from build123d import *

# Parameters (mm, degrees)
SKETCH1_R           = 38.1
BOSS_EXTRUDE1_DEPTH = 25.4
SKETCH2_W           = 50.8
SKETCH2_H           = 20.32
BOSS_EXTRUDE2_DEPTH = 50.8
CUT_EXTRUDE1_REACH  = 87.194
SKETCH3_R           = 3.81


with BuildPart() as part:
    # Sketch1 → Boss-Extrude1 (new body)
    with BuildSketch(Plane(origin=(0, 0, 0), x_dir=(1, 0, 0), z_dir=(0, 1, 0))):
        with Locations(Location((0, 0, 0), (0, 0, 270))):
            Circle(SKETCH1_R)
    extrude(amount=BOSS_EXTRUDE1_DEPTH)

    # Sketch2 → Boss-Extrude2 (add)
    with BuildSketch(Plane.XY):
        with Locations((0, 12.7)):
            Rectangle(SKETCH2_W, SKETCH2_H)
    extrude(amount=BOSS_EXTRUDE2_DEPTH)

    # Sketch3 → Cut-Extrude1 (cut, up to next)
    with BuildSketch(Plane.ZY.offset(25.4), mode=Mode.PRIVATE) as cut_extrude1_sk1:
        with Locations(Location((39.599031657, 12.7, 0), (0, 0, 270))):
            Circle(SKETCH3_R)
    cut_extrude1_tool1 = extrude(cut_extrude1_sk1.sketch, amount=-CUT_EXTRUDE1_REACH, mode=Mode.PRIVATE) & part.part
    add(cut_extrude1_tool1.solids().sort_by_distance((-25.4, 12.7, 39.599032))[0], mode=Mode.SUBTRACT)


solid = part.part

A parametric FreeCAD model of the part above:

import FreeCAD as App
import Part
import Sketcher
Q = App.Units.Quantity


def add_polygon(sketch, points):
    """Adds a closed chain of lines whose ends are joined by coincident constraints."""
    first, n = sketch.GeometryCount, len(points)
    for a, b in zip(points, points[1:] + points[:1]):
        sketch.addGeometry(Part.LineSegment(App.Vector(*a, 0), App.Vector(*b, 0)), False)
    for i in range(n):
        sketch.addConstraint(Sketcher.Constraint("Coincident", first + i, 2, first + (i + 1) % n, 1))

doc = App.newDocument("Part")
body = doc.addObject("PartDesign::Body", "Body")

# Sketch on XZ plane
sketch1 = doc.addObject("Sketcher::SketchObject", "Sketch")
body.addObject(sketch1)
sketch1.AttachmentSupport = (doc.XZ_Plane, [""])
sketch1.MapMode = "FlatFace"
sketch1.addGeometry(Part.Circle(App.Vector(0, 0, 0), App.Vector(0, 0, 1), 38), False)
sketch1.addConstraint([
    Sketcher.Constraint("Coincident", 0, 3, -1, 1),
    Sketcher.Constraint("Diameter", 0, Q("3 in")),
])
pad1 = doc.addObject("PartDesign::Pad", "Pad")
body.addObject(pad1)
pad1.Profile = sketch1
pad1.Length = Q("1 in")
pad1.Reversed = True

# Sketch on XY plane
sketch2 = doc.addObject("Sketcher::SketchObject", "Sketch001")
body.addObject(sketch2)
sketch2.AttachmentSupport = (doc.XY_Plane, [""])
sketch2.MapMode = "FlatFace"
add_polygon(sketch2, [(-25, 23), (-25, 3), (25, 3), (25, 23)])  # lines 0-3
sketch2.addConstraint([
    Sketcher.Constraint("Vertical", 0),
    Sketcher.Constraint("Horizontal", 1),
    Sketcher.Constraint("Vertical", 2),
    Sketcher.Constraint("Horizontal", 3),
    Sketcher.Constraint("DistanceX", 1, 1, 1, 2, Q("2 in")),
    Sketcher.Constraint("DistanceY", 0, 2, 0, 1, Q("0.8 in")),
    Sketcher.Constraint("DistanceX", 0, 2, -1, 1, Q("1 in")),
    Sketcher.Constraint("DistanceY", -1, 1, 0, 2, Q("0.1 in")),
])
pad2 = doc.addObject("PartDesign::Pad", "Pad001")
body.addObject(pad2)
pad2.Profile = sketch2
pad2.Length = Q("2 in")

# Sketch on YZ plane
sketch3 = doc.addObject("Sketcher::SketchObject", "Sketch002")
body.addObject(sketch3)
sketch3.AttachmentSupport = (doc.YZ_Plane, [""])
sketch3.MapMode = "FlatFace"
sketch3.AttachmentOffset = App.Placement(App.Vector(0, 0, -1 * 25.4), App.Rotation())
sketch3.addGeometry(Part.Circle(App.Vector(12.7, 39.6, 0), App.Vector(0, 0, 1), 3.8), False)
sketch3.addConstraint([
    Sketcher.Constraint("Diameter", 0, Q("0.3 in")),
    Sketcher.Constraint("DistanceX", -1, 1, 0, 3, Q("0.5 in")),
    Sketcher.Constraint("DistanceY", -1, 1, 0, 3, 39.599032),
])
pocket1 = doc.addObject("PartDesign::Pocket", "Pocket")
body.addObject(pocket1)
pocket1.Profile = sketch3
pocket1.Type = "UpToFirst"
pocket1.Reversed = True

doc.recompute()
